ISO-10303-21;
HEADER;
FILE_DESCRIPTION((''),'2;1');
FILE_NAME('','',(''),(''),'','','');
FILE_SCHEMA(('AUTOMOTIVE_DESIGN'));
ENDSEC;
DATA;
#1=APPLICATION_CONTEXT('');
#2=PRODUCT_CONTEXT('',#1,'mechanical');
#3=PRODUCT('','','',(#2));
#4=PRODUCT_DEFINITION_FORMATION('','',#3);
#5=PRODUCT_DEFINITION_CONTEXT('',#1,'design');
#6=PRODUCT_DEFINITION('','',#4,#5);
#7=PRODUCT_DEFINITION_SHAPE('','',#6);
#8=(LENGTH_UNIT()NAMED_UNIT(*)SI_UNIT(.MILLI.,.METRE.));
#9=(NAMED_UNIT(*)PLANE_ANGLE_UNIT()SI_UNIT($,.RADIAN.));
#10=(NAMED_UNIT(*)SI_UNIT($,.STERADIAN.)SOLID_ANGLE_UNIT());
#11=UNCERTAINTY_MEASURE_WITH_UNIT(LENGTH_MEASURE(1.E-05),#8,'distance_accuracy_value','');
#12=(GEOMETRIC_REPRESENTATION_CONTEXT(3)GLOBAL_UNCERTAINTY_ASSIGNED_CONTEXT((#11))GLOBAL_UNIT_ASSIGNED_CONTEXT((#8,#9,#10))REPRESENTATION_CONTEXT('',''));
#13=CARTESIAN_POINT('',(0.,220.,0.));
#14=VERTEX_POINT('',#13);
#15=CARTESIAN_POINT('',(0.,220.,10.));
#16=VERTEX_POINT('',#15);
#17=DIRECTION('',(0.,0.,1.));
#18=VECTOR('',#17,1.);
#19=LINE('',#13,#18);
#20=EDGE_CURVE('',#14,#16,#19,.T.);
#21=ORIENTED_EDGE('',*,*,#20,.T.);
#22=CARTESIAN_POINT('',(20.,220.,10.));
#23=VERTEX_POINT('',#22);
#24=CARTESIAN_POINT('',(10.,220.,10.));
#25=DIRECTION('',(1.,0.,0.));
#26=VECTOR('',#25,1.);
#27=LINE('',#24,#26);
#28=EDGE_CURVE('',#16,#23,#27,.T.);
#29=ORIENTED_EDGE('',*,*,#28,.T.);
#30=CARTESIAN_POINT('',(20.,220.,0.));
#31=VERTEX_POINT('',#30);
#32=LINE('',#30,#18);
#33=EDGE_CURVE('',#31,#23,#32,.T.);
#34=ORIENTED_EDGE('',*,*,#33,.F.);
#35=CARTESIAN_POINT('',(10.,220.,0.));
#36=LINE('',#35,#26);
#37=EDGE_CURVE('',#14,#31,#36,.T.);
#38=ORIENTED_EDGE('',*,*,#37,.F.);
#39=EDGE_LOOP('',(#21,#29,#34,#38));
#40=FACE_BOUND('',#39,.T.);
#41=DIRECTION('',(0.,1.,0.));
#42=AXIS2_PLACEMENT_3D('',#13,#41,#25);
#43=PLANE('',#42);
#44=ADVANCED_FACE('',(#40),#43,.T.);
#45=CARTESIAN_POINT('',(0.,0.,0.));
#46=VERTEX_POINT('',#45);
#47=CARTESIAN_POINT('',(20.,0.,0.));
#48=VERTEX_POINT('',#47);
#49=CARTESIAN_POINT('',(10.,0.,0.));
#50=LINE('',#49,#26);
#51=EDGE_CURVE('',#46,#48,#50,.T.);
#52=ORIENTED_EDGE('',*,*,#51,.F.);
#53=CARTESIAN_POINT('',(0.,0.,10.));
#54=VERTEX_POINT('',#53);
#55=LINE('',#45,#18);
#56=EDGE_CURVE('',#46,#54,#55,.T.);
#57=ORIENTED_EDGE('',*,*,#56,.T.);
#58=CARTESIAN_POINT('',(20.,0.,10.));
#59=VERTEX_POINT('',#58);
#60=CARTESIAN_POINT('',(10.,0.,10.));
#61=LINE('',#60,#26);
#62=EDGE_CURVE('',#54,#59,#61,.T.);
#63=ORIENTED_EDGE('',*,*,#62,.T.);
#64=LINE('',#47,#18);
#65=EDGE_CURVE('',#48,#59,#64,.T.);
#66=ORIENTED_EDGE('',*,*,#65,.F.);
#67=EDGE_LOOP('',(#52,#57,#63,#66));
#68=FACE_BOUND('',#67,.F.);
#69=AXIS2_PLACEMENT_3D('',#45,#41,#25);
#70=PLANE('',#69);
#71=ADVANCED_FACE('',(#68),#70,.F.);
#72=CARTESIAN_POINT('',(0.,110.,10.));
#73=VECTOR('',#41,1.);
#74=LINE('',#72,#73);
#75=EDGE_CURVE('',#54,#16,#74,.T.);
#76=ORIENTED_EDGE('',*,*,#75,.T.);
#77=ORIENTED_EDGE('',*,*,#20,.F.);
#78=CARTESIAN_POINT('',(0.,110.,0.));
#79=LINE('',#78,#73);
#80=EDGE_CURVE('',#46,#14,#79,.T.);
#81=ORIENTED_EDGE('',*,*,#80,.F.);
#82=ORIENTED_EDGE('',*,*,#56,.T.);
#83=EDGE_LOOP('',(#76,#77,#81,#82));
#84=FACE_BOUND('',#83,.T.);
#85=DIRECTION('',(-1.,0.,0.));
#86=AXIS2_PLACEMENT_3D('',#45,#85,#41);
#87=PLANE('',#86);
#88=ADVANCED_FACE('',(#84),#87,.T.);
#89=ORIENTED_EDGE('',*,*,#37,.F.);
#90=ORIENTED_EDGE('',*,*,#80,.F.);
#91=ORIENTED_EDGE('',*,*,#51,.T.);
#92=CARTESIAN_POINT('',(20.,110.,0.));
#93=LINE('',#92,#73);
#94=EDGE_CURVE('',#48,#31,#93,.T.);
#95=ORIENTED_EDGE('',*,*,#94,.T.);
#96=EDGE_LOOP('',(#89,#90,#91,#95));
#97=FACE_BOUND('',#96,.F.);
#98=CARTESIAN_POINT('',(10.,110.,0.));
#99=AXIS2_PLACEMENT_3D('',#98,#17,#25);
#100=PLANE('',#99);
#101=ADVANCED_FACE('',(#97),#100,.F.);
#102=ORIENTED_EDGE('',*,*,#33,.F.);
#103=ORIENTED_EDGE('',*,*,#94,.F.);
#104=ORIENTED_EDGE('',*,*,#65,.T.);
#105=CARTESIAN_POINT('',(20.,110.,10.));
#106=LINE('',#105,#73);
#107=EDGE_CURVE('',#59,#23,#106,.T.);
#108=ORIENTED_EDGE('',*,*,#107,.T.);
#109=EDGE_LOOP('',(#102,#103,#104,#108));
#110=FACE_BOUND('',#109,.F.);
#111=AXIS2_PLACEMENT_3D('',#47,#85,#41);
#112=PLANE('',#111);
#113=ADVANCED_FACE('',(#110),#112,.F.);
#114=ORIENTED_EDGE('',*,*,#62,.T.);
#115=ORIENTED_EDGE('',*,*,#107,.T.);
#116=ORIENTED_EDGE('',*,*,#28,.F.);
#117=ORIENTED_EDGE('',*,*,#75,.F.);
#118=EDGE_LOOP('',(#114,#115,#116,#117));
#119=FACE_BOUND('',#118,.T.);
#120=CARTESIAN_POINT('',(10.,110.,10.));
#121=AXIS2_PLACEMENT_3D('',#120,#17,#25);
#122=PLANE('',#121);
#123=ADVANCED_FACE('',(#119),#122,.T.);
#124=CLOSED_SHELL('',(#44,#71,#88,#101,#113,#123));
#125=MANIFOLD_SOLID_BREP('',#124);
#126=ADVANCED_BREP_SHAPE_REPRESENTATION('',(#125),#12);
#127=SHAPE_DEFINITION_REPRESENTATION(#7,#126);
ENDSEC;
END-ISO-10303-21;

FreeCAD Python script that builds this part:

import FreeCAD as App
import Part
import Sketcher

V = App.Vector
Q = App.Units.Quantity

doc = App.newDocument("Part")
body = doc.addObject("PartDesign::Body", "Body")

# Sketch on XY plane
sketch1 = body.newObject("Sketcher::SketchObject", "Sketch")
sketch1.AttachmentSupport = (doc.getObject("XY_Plane"), [""])
sketch1.MapMode = "FlatFace"
sketch1.addGeometry([
    Part.LineSegment(V(0, 220, 0), V(0, 0, 0)),
    Part.LineSegment(V(0, 0, 0), V(20, 0, 0)),
    Part.LineSegment(V(20, 0, 0), V(20, 220, 0)),
    Part.LineSegment(V(20, 220, 0), V(0, 220, 0)),
], False)
sketch1.addConstraint([
    Sketcher.Constraint("Coincident", 0, 2, 1, 1),
    Sketcher.Constraint("Coincident", 1, 2, 2, 1),
    Sketcher.Constraint("Coincident", 2, 2, 3, 1),
    Sketcher.Constraint("Coincident", 3, 2, 0, 1),
    Sketcher.Constraint("Vertical", 0),
    Sketcher.Constraint("Horizontal", 1),
    Sketcher.Constraint("Vertical", 2),
    Sketcher.Constraint("Horizontal", 3),
    Sketcher.Constraint("Coincident", 0, 2, -1, 1),
    Sketcher.Constraint("DistanceX", 1, 1, 1, 2, Q("20 mm")),
    Sketcher.Constraint("DistanceY", 0, 2, 0, 1, Q("220 mm")),
])
pad1 = body.newObject("PartDesign::Pad", "Pad")
pad1.Profile = sketch1
pad1.Length = 10

doc.recompute()
